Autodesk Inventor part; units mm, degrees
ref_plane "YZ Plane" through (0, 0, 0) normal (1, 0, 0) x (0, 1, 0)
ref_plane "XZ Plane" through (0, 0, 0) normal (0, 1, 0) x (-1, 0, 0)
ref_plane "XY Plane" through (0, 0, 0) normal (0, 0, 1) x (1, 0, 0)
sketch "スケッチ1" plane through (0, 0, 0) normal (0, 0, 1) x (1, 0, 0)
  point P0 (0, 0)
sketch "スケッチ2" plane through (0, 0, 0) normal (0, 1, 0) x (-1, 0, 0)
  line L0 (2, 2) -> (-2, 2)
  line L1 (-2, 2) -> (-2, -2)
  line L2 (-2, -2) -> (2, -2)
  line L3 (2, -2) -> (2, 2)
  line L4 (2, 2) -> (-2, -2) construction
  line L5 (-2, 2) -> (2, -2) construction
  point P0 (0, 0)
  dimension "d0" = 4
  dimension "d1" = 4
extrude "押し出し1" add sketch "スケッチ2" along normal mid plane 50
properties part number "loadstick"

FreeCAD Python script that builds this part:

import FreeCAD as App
import Part
import Sketcher
from FreeCAD import Vector


def add_polygon(sketch, points):
    """Adds a closed chain of lines whose ends are joined by coincident constraints."""
    first, n = sketch.GeometryCount, len(points)
    for a, b in zip(points, points[1:] + points[:1]):
        sketch.addGeometry(Part.LineSegment(App.Vector(*a, 0), App.Vector(*b, 0)), False)
    for i in range(n):
        sketch.addConstraint(Sketcher.Constraint("Coincident", first + i, 2, first + (i + 1) % n, 1))

doc = App.newDocument("Part")
params = doc.addObject("Spreadsheet::Sheet", "Params")
for row, (alias, value) in enumerate([
    ("sketch1_width", "4 mm"),
    ("pad1_length", "50 mm"),
], start=1):
    params.set(f"A{row}", alias)
    params.set(f"B{row}", "=" + value)
    params.setAlias(f"B{row}", alias)

body = doc.addObject("PartDesign::Body", "Body")

sketch1 = body.newObject("Sketcher::SketchObject", "Sketch")
sketch1.AttachmentSupport = (doc.getObject("XZ_Plane"), [""])
sketch1.MapMode = "FlatFace"
add_polygon(sketch1, [(-2, -2), (-2, 2), (2, 2), (2, -2)])
sketch1.addConstraint(Sketcher.Constraint("Vertical", 0))
sketch1.addConstraint(Sketcher.Constraint("Horizontal", 1))
sketch1.addConstraint(Sketcher.Constraint("Vertical", 2))
sketch1.addConstraint(Sketcher.Constraint("Horizontal", 3))
sketch1.addConstraint(Sketcher.Constraint("Symmetric", 0, 2, 2, 2, -1, 1))
sketch1.addConstraint(Sketcher.Constraint("Equal", 3, 0))
sketch1.addConstraint(Sketcher.Constraint("DistanceX", 1, 1, 1, 2, 4.0))
sketch1.setExpression("Constraints[10]", "Params.sketch1_width")
pad1 = body.newObject("PartDesign::Pad", "Pad")
pad1.Profile = sketch1
pad1.setExpression("Length", "Params.pad1_length")
pad1.Midplane = True

doc.recompute()
